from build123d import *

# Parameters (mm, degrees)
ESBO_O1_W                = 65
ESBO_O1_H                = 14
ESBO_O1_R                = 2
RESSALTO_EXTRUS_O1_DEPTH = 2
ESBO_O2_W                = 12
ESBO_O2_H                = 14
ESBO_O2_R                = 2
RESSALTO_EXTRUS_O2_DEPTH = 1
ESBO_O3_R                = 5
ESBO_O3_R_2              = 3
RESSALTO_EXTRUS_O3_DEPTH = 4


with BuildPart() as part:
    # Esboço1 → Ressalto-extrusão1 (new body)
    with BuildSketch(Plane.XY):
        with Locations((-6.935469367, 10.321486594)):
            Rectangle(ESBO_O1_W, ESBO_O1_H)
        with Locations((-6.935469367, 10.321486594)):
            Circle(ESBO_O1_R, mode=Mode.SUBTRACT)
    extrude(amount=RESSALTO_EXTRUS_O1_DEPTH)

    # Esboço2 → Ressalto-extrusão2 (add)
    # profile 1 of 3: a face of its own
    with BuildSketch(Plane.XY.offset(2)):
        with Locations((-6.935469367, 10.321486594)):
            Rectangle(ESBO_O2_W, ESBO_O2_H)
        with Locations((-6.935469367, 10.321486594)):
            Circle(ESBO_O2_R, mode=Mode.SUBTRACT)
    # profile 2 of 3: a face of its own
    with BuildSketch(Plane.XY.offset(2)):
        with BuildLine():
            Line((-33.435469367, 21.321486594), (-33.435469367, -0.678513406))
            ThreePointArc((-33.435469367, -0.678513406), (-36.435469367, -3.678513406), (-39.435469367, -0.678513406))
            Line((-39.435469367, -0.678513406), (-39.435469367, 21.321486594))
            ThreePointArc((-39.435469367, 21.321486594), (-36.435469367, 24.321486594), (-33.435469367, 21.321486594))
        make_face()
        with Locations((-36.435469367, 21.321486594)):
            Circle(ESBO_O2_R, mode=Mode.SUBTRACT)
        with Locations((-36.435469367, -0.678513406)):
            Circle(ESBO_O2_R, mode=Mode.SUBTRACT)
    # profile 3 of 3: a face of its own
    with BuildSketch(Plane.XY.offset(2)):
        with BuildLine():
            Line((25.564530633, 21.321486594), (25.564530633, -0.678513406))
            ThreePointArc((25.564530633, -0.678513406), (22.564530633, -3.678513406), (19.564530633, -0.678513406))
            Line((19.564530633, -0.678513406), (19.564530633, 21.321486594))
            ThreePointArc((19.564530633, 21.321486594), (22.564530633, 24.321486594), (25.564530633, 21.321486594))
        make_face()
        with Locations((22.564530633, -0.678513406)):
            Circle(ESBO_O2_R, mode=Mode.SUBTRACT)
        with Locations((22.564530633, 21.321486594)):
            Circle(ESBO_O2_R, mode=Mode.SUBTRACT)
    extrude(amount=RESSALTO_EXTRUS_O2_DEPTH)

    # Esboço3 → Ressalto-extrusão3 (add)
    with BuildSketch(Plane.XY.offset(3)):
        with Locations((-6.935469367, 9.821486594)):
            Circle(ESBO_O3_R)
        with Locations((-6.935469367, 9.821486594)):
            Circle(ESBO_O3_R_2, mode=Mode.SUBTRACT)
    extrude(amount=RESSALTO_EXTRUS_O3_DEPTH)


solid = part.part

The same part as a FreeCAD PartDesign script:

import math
import FreeCAD as App
import Part
import Sketcher

V = App.Vector
Q = App.Units.Quantity

doc = App.newDocument("Part")
body = doc.addObject("PartDesign::Body", "Body")

# Sketch on XY plane
sketch1 = body.newObject("Sketcher::SketchObject", "Sketch")
sketch1.AttachmentSupport = (doc.getObject("XY_Plane"), [""])
sketch1.MapMode = "FlatFace"
sketch1.addGeometry(Part.LineSegment(V(-39.435469, 17.321487, 0), V(-39.435469, 3.321487, 0)), False)
sketch1.addGeometry(Part.LineSegment(V(-39.435469, 3.321487, 0), V(25.564531, 3.321487, 0)), False)
sketch1.addGeometry(Part.LineSegment(V(25.564531, 3.321487, 0), V(25.564531, 17.321487, 0)), False)
sketch1.addGeometry(Part.LineSegment(V(25.564531, 17.321487, 0), V(-39.435469, 17.321487, 0)), False)
sketch1.addGeometry(Part.Circle(V(-6.935469, 10.321487, 0), V(0, 0, 1), 2), False)
sketch1.addConstraint(Sketcher.Constraint("Coincident", 0, 2, 1, 1))
sketch1.addConstraint(Sketcher.Constraint("Coincident", 1, 2, 2, 1))
sketch1.addConstraint(Sketcher.Constraint("Coincident", 2, 2, 3, 1))
sketch1.addConstraint(Sketcher.Constraint("Coincident", 3, 2, 0, 1))
sketch1.addConstraint(Sketcher.Constraint("Vertical", 0))
sketch1.addConstraint(Sketcher.Constraint("Horizontal", 1))
sketch1.addConstraint(Sketcher.Constraint("Vertical", 2))
sketch1.addConstraint(Sketcher.Constraint("Horizontal", 3))
sketch1.addConstraint(Sketcher.Constraint("Diameter", 4, Q("4 mm")))
sketch1.addConstraint(Sketcher.Constraint("DistanceX", 1, 1, 1, 2, Q("65 mm")))
sketch1.addConstraint(Sketcher.Constraint("DistanceY", 0, 2, 0, 1, Q("14 mm")))
sketch1.addConstraint(Sketcher.Constraint("DistanceY", 0, 2, 4, 3, Q("7 mm")))
sketch1.addConstraint(Sketcher.Constraint("DistanceX", 0, 2, 4, 3, Q("32.5 mm")))
sketch1.addConstraint(Sketcher.Constraint("DistanceX", 4, 3, -1, 1, Q("6.935469 mm")))
sketch1.addConstraint(Sketcher.Constraint("DistanceY", -1, 1, 4, 3, Q("10.321487 mm")))
pad1 = body.newObject("PartDesign::Pad", "Pad")
pad1.Profile = sketch1
pad1.Length = 2

# Sketch on XY plane
sketch2 = body.newObject("Sketcher::SketchObject", "Sketch001")
sketch2.AttachmentSupport = (doc.getObject("XY_Plane"), [""])
sketch2.MapMode = "FlatFace"
sketch2.AttachmentOffset = App.Placement(V(0, 0, 2), App.Rotation())
sketch2.addGeometry(Part.LineSegment(V(-12.935469, 17.321487, 0), V(-12.935469, 3.321487, 0)), False)
sketch2.addGeometry(Part.LineSegment(V(-12.935469, 3.321487, 0), V(-0.935469, 3.321487, 0)), False)
sketch2.addGeometry(Part.LineSegment(V(-0.935469, 3.321487, 0), V(-0.935469, 17.321487, 0)), False)
sketch2.addGeometry(Part.LineSegment(V(-0.935469, 17.321487, 0), V(-12.935469, 17.321487, 0)), False)
sketch2.addGeometry(Part.Circle(V(-6.935469, 10.321487, 0), V(0, 0, 1), 2), False)
sketch2.addGeometry(Part.LineSegment(V(-33.435469, -0.678513, 0), V(-33.435469, 21.321487, 0)), False)
sketch2.addGeometry(Part.ArcOfCircle(Part.Circle(V(-36.435469, 21.321487, 0), V(0, 0, 1), 3), math.radians(0), math.radians(180)), False)
sketch2.addGeometry(Part.LineSegment(V(-39.435469, 21.321487, 0), V(-39.435469, -0.678513, 0)), False)
sketch2.addGeometry(Part.ArcOfCircle(Part.Circle(V(-36.435469, -0.678513, 0), V(0, 0, 1), 3), math.radians(180), math.radians(360)), False)
sketch2.addGeometry(Part.Circle(V(-36.435469, -0.678513, 0), V(0, 0, 1), 2), False)
sketch2.addGeometry(Part.Circle(V(-36.435469, 21.321487, 0), V(0, 0, 1), 2), False)
sketch2.addGeometry(Part.LineSegment(V(25.564531, -0.678513, 0), V(25.564531, 21.321487, 0)), False)
sketch2.addGeometry(Part.ArcOfCircle(Part.Circle(V(22.564531, 21.321487, 0), V(0, 0, 1), 3), math.radians(0), math.radians(180)), False)
sketch2.addGeometry(Part.LineSegment(V(19.564531, 21.321487, 0), V(19.564531, -0.678513, 0)), False)
sketch2.addGeometry(Part.ArcOfCircle(Part.Circle(V(22.564531, -0.678513, 0), V(0, 0, 1), 3), math.radians(180), math.radians(360)), False)
sketch2.addGeometry(Part.Circle(V(22.564531, -0.678513, 0), V(0, 0, 1), 2), False)
sketch2.addGeometry(Part.Circle(V(22.564531, 21.321487, 0), V(0, 0, 1), 2), False)
sketch2.addConstraint(Sketcher.Constraint("Coincident", 0, 2, 1, 1))
sketch2.addConstraint(Sketcher.Constraint("Coincident", 1, 2, 2, 1))
sketch2.addConstraint(Sketcher.Constraint("Coincident", 2, 2, 3, 1))
sketch2.addConstraint(Sketcher.Constraint("Coincident", 3, 2, 0, 1))
sketch2.addConstraint(Sketcher.Constraint("Tangent", 5, 2, 6, 1))
sketch2.addConstraint(Sketcher.Constraint("Tangent", 6, 2, 7, 1))
sketch2.addConstraint(Sketcher.Constraint("Tangent", 7, 2, 8, 1))
sketch2.addConstraint(Sketcher.Constraint("Tangent", 8, 2, 5, 1))
sketch2.addConstraint(Sketcher.Constraint("Tangent", 11, 2, 12, 1))
sketch2.addConstraint(Sketcher.Constraint("Tangent", 12, 2, 13, 1))
sketch2.addConstraint(Sketcher.Constraint("Tangent", 13, 2, 14, 1))
sketch2.addConstraint(Sketcher.Constraint("Tangent", 14, 2, 11, 1))
sketch2.addConstraint(Sketcher.Constraint("Vertical", 0))
sketch2.addConstraint(Sketcher.Constraint("Horizontal", 1))
sketch2.addConstraint(Sketcher.Constraint("Vertical", 2))
sketch2.addConstraint(Sketcher.Constraint("Horizontal", 3))
sketch2.addConstraint(Sketcher.Constraint("Vertical", 5))
sketch2.addConstraint(Sketcher.Constraint("Vertical", 7))
sketch2.addConstraint(Sketcher.Constraint("Vertical", 11))
sketch2.addConstraint(Sketcher.Constraint("Vertical", 13))
sketch2.addConstraint(Sketcher.Constraint("Coincident", 9, 3, 8, 3))
sketch2.addConstraint(Sketcher.Constraint("Coincident", 10, 3, 6, 3))
sketch2.addConstraint(Sketcher.Constraint("Coincident", 15, 3, 14, 3))
sketch2.addConstraint(Sketcher.Constraint("Coincident", 16, 3, 12, 3))
sketch2.addConstraint(Sketcher.Constraint("Equal", 4, 9))
sketch2.addConstraint(Sketcher.Constraint("Equal", 9, 10))
sketch2.addConstraint(Sketcher.Constraint("Equal", 8, 12))
sketch2.addConstraint(Sketcher.Constraint("Equal", 10, 15))
sketch2.addConstraint(Sketcher.Constraint("Equal", 15, 16))
sketch2.addConstraint(Sketcher.Constraint("Horizontal", 10, 3, 12, 3))
sketch2.addConstraint(Sketcher.Constraint("Horizontal", 9, 3, 14, 3))
sketch2.addConstraint(Sketcher.Constraint("Diameter", 4, Q("4 mm")))
sketch2.addConstraint(Sketcher.Constraint("Radius", 6, Q("3 mm")))
sketch2.addConstraint(Sketcher.Constraint("DistanceX", 1, 1, 1, 2, Q("12 mm")))
sketch2.addConstraint(Sketcher.Constraint("DistanceY", 0, 2, 0, 1, Q("14 mm")))
sketch2.addConstraint(Sketcher.Constraint("DistanceY", 5, 1, 5, 2, Q("22 mm")))
sketch2.addConstraint(Sketcher.Constraint("DistanceY", 4, 3, 6, 3, Q("11 mm")))
sketch2.addConstraint(Sketcher.Constraint("DistanceX", 6, 3, 12, 3, Q("59 mm")))
sketch2.addConstraint(Sketcher.Constraint("DistanceX", 0, 2, 4, 3, Q("6 mm")))
sketch2.addConstraint(Sketcher.Constraint("DistanceY", 0, 2, 4, 3, Q("7 mm")))
sketch2.addConstraint(Sketcher.Constraint("DistanceX", 6, 3, 4, 3, Q("29.5 mm")))
sketch2.addConstraint(Sketcher.Constraint("DistanceX", 4, 3, -1, 1, Q("6.935469 mm")))
sketch2.addConstraint(Sketcher.Constraint("DistanceY", -1, 1, 4, 3, Q("10.321487 mm")))
pad2 = body.newObject("PartDesign::Pad", "Pad001")
pad2.Profile = sketch2
pad2.Length = 1

# Sketch on XY plane
sketch3 = body.newObject("Sketcher::SketchObject", "Sketch002")
sketch3.AttachmentSupport = (doc.getObject("XY_Plane"), [""])
sketch3.MapMode = "FlatFace"
sketch3.AttachmentOffset = App.Placement(V(0, 0, 3), App.Rotation())
sketch3.addGeometry(Part.Circle(V(-6.935469, 9.821487, 0), V(0, 0, 1), 5), False)
sketch3.addGeometry(Part.Circle(V(-6.935469, 9.821487, 0), V(0, 0, 1), 3), False)
sketch3.addConstraint(Sketcher.Constraint("Coincident", 1, 3, 0, 3))
sketch3.addConstraint(Sketcher.Constraint("Diameter", 0, Q("10 mm")))
sketch3.addConstraint(Sketcher.Constraint("Diameter", 1, Q("6 mm")))
sketch3.addConstraint(Sketcher.Constraint("DistanceX", 0, 3, -1, 1, Q("6.935469 mm")))
sketch3.addConstraint(Sketcher.Constraint("DistanceY", -1, 1, 0, 3, Q("9.821487 mm")))
pad3 = body.newObject("PartDesign::Pad", "Pad002")
pad3.Profile = sketch3
pad3.Length = 4

doc.recompute()
